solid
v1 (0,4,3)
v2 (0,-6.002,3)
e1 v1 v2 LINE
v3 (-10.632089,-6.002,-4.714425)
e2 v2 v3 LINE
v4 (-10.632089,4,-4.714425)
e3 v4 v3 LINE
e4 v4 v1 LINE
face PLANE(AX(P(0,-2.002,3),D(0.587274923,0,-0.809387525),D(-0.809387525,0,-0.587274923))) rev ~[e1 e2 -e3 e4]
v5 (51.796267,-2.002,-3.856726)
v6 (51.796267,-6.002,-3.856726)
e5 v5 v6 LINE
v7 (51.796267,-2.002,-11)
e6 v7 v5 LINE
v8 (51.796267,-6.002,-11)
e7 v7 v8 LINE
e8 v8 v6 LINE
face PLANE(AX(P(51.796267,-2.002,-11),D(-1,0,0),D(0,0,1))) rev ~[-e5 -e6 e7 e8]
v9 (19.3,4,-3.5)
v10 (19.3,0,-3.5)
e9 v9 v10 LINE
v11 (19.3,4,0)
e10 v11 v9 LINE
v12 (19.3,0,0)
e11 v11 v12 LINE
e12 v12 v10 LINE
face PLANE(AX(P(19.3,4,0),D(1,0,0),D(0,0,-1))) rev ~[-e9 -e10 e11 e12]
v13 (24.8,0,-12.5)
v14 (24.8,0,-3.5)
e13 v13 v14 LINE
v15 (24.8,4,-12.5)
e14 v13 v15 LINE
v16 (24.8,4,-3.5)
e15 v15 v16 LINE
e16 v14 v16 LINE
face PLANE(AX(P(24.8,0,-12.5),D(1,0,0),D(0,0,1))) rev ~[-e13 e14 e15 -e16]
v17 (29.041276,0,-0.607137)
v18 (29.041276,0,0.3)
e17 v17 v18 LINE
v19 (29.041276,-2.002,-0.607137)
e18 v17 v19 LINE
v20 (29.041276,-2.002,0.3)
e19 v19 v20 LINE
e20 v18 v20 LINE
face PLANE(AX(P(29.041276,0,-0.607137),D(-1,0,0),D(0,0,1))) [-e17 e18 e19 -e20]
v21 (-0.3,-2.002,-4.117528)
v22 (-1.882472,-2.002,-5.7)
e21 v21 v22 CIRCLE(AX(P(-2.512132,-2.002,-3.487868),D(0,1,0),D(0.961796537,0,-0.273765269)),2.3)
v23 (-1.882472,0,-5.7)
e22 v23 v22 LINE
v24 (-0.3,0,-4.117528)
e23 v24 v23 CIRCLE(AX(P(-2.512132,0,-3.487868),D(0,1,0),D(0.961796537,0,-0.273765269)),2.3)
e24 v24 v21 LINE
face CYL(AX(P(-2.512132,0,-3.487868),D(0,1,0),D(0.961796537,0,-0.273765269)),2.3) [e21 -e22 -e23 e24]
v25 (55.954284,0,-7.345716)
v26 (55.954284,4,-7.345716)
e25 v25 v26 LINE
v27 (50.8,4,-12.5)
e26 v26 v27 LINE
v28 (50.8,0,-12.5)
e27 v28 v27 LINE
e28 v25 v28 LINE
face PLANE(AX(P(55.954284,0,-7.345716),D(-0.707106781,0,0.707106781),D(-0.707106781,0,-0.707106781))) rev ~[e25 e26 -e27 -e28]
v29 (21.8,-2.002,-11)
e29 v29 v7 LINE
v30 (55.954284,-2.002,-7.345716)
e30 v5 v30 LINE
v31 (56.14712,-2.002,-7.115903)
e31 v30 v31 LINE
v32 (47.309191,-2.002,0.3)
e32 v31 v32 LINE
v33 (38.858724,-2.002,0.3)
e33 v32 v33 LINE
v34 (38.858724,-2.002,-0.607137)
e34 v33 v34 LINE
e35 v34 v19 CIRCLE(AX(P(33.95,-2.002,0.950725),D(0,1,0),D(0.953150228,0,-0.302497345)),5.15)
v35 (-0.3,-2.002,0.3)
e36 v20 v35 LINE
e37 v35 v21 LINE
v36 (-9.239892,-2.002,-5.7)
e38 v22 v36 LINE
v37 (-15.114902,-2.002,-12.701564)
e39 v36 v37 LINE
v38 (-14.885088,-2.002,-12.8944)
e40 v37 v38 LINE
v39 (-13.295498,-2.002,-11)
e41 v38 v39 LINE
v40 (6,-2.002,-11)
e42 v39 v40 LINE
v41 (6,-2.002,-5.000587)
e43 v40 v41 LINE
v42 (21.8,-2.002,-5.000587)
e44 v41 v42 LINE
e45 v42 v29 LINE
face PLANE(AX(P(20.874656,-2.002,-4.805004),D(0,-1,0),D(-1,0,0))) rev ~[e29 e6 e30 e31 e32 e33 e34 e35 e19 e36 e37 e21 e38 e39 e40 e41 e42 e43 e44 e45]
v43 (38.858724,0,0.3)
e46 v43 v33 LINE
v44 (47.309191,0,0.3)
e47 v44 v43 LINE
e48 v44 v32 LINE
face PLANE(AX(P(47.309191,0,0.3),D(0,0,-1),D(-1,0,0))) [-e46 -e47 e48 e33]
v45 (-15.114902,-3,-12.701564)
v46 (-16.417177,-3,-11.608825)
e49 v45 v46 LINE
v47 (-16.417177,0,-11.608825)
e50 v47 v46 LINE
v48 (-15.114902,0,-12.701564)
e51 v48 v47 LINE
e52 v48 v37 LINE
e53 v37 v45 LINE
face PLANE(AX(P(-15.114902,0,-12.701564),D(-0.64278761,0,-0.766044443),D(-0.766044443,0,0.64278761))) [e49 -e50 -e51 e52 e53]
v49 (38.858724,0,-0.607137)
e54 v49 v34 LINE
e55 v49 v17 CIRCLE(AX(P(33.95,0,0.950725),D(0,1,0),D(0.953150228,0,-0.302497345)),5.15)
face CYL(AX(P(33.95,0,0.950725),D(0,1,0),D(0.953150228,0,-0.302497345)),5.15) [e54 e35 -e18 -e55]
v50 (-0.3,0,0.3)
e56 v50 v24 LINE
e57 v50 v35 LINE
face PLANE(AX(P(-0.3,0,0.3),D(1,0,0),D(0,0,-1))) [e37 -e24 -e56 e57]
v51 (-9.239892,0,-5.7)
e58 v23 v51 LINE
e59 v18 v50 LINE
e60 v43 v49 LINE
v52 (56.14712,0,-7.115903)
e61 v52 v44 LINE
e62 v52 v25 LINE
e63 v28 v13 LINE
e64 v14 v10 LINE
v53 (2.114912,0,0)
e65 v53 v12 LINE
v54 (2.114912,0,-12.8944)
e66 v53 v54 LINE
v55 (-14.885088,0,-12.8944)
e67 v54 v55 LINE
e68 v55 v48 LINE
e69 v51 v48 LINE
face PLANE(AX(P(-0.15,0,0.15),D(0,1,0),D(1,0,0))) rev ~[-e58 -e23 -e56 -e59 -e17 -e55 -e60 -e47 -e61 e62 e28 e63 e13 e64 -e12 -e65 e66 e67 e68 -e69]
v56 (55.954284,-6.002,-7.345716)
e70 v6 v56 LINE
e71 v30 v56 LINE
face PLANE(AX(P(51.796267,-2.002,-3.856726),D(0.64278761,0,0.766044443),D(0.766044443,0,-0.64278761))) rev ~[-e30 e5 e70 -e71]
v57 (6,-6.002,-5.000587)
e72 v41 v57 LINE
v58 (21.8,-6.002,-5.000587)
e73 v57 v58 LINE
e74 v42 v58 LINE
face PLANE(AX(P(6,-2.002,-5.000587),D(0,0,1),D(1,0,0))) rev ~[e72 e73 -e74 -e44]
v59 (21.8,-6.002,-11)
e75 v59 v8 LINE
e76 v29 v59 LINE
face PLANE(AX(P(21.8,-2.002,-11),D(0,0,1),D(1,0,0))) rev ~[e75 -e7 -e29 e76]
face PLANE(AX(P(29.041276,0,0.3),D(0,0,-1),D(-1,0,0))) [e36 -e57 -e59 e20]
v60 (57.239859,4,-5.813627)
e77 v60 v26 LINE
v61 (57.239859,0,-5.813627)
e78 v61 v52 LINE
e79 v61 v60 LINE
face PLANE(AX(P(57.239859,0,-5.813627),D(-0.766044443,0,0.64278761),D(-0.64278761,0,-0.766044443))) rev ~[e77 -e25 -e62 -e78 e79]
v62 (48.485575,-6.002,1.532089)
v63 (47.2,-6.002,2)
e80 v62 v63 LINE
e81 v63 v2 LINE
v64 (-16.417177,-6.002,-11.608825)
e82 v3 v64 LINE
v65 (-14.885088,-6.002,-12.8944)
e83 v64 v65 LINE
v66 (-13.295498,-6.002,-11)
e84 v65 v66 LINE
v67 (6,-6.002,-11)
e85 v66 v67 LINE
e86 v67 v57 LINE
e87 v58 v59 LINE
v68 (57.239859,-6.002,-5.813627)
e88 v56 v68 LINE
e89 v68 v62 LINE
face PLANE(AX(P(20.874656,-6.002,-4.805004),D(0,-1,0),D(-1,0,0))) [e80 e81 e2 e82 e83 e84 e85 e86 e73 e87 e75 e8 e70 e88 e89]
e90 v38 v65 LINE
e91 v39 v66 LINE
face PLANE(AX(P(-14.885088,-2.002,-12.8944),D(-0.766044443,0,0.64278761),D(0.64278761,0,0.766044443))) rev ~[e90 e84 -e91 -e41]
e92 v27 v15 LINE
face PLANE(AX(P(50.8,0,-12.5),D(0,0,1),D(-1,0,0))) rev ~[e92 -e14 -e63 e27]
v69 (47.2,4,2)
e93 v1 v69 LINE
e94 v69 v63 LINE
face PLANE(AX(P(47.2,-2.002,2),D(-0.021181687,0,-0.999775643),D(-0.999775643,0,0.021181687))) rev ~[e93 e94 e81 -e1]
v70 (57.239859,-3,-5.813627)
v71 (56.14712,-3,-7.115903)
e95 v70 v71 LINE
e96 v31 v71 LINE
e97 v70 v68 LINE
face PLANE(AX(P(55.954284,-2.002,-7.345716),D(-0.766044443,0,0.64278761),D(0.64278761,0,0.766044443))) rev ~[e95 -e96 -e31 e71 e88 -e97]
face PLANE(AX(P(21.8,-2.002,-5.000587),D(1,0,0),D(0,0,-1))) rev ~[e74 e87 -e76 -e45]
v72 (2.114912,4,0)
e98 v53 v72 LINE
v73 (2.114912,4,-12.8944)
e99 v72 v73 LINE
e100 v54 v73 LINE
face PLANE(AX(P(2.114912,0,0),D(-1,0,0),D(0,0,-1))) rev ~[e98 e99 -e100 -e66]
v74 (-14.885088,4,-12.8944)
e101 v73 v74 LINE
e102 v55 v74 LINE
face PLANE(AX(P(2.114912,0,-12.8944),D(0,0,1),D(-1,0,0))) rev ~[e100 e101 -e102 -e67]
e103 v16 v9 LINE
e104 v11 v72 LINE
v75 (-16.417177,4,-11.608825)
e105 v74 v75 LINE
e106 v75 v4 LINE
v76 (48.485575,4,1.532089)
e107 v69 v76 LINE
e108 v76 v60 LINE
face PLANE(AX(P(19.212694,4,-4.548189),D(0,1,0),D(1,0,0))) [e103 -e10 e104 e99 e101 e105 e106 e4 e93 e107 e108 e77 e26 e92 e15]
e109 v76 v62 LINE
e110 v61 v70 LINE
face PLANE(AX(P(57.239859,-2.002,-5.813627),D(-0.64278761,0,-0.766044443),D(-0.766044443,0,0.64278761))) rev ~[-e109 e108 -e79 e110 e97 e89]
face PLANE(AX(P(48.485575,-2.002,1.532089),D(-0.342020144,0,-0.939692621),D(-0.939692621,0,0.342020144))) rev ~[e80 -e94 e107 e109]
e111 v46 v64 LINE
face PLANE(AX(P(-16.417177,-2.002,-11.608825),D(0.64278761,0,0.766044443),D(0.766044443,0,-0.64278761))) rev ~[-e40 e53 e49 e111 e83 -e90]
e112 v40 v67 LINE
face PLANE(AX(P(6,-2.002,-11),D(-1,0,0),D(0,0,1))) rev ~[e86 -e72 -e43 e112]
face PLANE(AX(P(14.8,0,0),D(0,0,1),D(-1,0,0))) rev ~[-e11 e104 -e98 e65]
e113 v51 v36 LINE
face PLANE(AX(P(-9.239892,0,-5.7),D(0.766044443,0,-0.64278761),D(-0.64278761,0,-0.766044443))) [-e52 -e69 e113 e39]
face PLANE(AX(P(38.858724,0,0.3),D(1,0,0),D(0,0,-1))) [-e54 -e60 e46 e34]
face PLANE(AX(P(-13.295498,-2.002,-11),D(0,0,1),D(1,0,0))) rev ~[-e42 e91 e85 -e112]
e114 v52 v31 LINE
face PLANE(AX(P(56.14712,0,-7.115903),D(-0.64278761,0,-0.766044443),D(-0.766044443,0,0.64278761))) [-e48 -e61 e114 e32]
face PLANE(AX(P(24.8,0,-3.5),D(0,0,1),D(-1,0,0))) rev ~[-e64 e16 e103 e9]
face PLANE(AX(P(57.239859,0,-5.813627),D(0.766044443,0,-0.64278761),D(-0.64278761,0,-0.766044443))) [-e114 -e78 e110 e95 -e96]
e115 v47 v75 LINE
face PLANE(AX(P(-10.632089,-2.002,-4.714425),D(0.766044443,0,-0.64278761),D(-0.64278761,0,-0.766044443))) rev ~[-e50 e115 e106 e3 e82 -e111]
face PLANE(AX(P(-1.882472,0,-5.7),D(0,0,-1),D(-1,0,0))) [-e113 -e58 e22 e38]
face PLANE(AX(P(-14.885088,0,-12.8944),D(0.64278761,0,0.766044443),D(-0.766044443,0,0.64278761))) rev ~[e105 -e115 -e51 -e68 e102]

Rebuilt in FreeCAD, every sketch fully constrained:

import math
import FreeCAD as App
import Part
import Sketcher
from FreeCAD import Vector
Q = App.Units.Quantity


def add_polygon(sketch, points):
    """Adds a closed chain of lines whose ends are joined by coincident constraints."""
    first, n = sketch.GeometryCount, len(points)
    for a, b in zip(points, points[1:] + points[:1]):
        sketch.addGeometry(Part.LineSegment(App.Vector(*a, 0), App.Vector(*b, 0)), False)
    for i in range(n):
        sketch.addConstraint(Sketcher.Constraint("Coincident", first + i, 2, first + (i + 1) % n, 1))

doc = App.newDocument("Part")
body = doc.addObject("PartDesign::Body", "Body")

# Sketch on XZ plane
sketch1 = body.newObject("Sketcher::SketchObject", "Sketch")
sketch1.AttachmentSupport = (doc.getObject("XZ_Plane"), [""])
sketch1.MapMode = "FlatFace"
add_polygon(sketch1, [(2.11, -12.89), (-14.89, -12.89), (-16.42, -11.61), (-10.63, -4.71), (0, 3), (47.2, 2), (48.49, 1.53), (57.24, -5.81), (55.95, -7.35), (50.8, -12.5), (24.8, -12.5), (24.8, -3.5), (14.8, -3.5), (14.8, 0), (2.11, 0)])  # lines 0-14
add_polygon(sketch1, [(0, 0.3), (-0.3, 0.3), (-0.3, 0), (0, 0)])  # lines 15-18
add_polygon(sketch1, [(47.2, 0), (47.39, 0.23), (47.31, 0.3), (47.2, 0.3)])  # lines 19-22
sketch1.addConstraint([
    Sketcher.Constraint("Horizontal", 0),
    Sketcher.Constraint("Horizontal", 9),
    Sketcher.Constraint("Vertical", 10),
    Sketcher.Constraint("Horizontal", 11),
    Sketcher.Constraint("Vertical", 12),
    Sketcher.Constraint("Horizontal", 13),
    Sketcher.Constraint("Vertical", 14),
    Sketcher.Constraint("Horizontal", 15),
    Sketcher.Constraint("Vertical", 16),
    Sketcher.Constraint("Horizontal", 17),
    Sketcher.Constraint("Vertical", 18),
    Sketcher.Constraint("Horizontal", 21),
    Sketcher.Constraint("Vertical", 22),
    Sketcher.Constraint("Coincident", 17, 2, -1, 1),
    Sketcher.Constraint("PointOnObject", 3, 2, -2),
    Sketcher.Constraint("PointOnObject", 12, 2, -1),
    Sketcher.Constraint("PointOnObject", 22, 2, -1),
    Sketcher.Constraint("Perpendicular", 1, 2),
    Sketcher.Constraint("Perpendicular", 2, 6),
    Sketcher.Constraint("Perpendicular", 6, 7),
    Sketcher.Constraint("Parallel", 7, 19),
    Sketcher.Constraint("Perpendicular", 19, 20),
    Sketcher.Constraint("Horizontal", 18, 2, 20, 2),
    Sketcher.Constraint("Vertical", 4, 2, 21, 2),
    Sketcher.Constraint("Equal", 17, 16),
    Sketcher.Constraint("Equal", 1, 7),
    Sketcher.Constraint("DistanceX", 0, 2, 0, 1, Q("17 mm")),
    Sketcher.Constraint("DistanceX", 9, 2, 9, 1, Q("26 mm")),
    Sketcher.Constraint("DistanceX", 11, 2, 11, 1, Q("10 mm")),
    Sketcher.Constraint("DistanceY", 10, 1, 10, 2, Q("9 mm")),
    Sketcher.Constraint("Angle", 1, Q("140 deg")),
    Sketcher.Constraint("Angle", 5, Q("-20 deg")),
    Sketcher.Constraint("Angle", 8, Q("-135 deg")),
    Sketcher.Constraint("Distance", 1, Q("2 mm")),
    Sketcher.Constraint("Distance", 2, Q("9 mm")),
    Sketcher.Constraint("DistanceX", 15, 2, 15, 1, Q("0.3 mm")),
    Sketcher.Constraint("DistanceY", 12, 1, 12, 2, Q("3.5 mm")),
    Sketcher.Constraint("DistanceY", -1, 1, 3, 2, Q("3 mm")),
    Sketcher.Constraint("DistanceY", -1, 1, 4, 2, Q("2 mm")),
    Sketcher.Constraint("Distance", 19, Q("0.3 mm")),
    Sketcher.Constraint("DistanceX", -1, 1, 4, 2, Q("47.2 mm")),
    Sketcher.Constraint("DistanceX", -1, 1, 8, 2, Q("50.8 mm")),
    Sketcher.Constraint("DistanceY", 14, 2, 14, 1, Q("12.8944 mm")),
    Sketcher.Constraint("DistanceX", 13, 2, 13, 1, Q("12.685088 mm")),
    Sketcher.Constraint("Distance", 5, Q("1.368081 mm")),
])
pad1 = body.newObject("PartDesign::Pad", "Pad")
pad1.Profile = sketch1
pad1.Length = 4
pad1.Reversed = True

# Sketch on XZ plane
sketch2 = body.newObject("Sketcher::SketchObject", "Sketch001")
sketch2.AttachmentSupport = (doc.getObject("XZ_Plane"), [""])
sketch2.MapMode = "FlatFace"
add_polygon(sketch2, [(-0.3, 0), (-0.3, 0.3), (0, 0.3), (0, 0)])  # lines 0-3
add_polygon(sketch2, [(47.2, 0), (47.2, 0.3), (47.31, 0.3), (47.39, 0.23)])  # lines 4-7
sketch2.addConstraint([
    Sketcher.Constraint("Vertical", 0),
    Sketcher.Constraint("Horizontal", 1),
    Sketcher.Constraint("Vertical", 2),
    Sketcher.Constraint("Horizontal", 3),
    Sketcher.Constraint("Vertical", 4),
    Sketcher.Constraint("Horizontal", 5),
    Sketcher.Constraint("Coincident", 2, 2, -1, 1),
    Sketcher.Constraint("PointOnObject", 7, 2, -1),
    Sketcher.Constraint("Perpendicular", 6, 7),
    Sketcher.Constraint("Horizontal", 1, 2, 4, 2),
    Sketcher.Constraint("Equal", 3, 0),
    Sketcher.Constraint("Angle", 6, Q("-40 deg")),
    Sketcher.Constraint("DistanceX", 1, 1, 1, 2, Q("0.3 mm")),
    Sketcher.Constraint("Distance", 7, Q("0.3 mm")),
    Sketcher.Constraint("DistanceX", -1, 1, 4, 2, Q("47.2 mm")),
])
pad2 = body.newObject("PartDesign::Pad", "Pad001")
pad2.Profile = sketch2
pad2.Length = 4
pad2.Reversed = True

# Sketch on XZ plane
sketch3 = body.newObject("Sketcher::SketchObject", "Sketch002")
sketch3.AttachmentSupport = (doc.getObject("XZ_Plane"), [""])
sketch3.MapMode = "FlatFace"
sketch3.addGeometry([
    Part.LineSegment(Vector(-0.3, 0.3, 0), Vector(-0.3, -4.1, 0)),  # 0
    Part.ArcOfCircle(Part.Circle(Vector(-2.5, -3.5, 0), Vector(0, 0, 1), 2.3), math.radians(-74), math.radians(-16)),  # 1
    Part.LineSegment(Vector(-1.9, -5.7, 0), Vector(-9.2, -5.7, 0)),  # 2
    Part.LineSegment(Vector(-9.2, -5.7, 0), Vector(-15.1, -12.7, 0)),  # 3
    Part.LineSegment(Vector(-15.1, -12.7, 0), Vector(-16.4, -11.6, 0)),  # 4
    Part.LineSegment(Vector(-16.4, -11.6, 0), Vector(-10.6, -4.7, 0)),  # 5
    Part.LineSegment(Vector(-10.6, -4.7, 0), Vector(0, 3, 0)),  # 6
    Part.LineSegment(Vector(0, 3, 0), Vector(47.2, 2, 0)),  # 7
    Part.LineSegment(Vector(47.2, 2, 0), Vector(48.5, 1.5, 0)),  # 8
    Part.LineSegment(Vector(48.5, 1.5, 0), Vector(57.2, -5.8, 0)),  # 9
    Part.LineSegment(Vector(57.2, -5.8, 0), Vector(56.1, -7.1, 0)),  # 10
    Part.LineSegment(Vector(56.1, -7.1, 0), Vector(47.3, 0.3, 0)),  # 11
    Part.LineSegment(Vector(47.3, 0.3, 0), Vector(38.9, 0.3, 0)),  # 12
    Part.LineSegment(Vector(38.9, 0.3, 0), Vector(38.9, -0.6, 0)),  # 13
    Part.ArcOfCircle(Part.Circle(Vector(34, 1, 0), Vector(0, 0, 1), 5.2), math.radians(-162), math.radians(-18)),  # 14
    Part.LineSegment(Vector(29, -0.6, 0), Vector(29, 0.3, 0)),  # 15
    Part.LineSegment(Vector(29, 0.3, 0), Vector(-0.3, 0.3, 0)),  # 16
], False)
sketch3.addConstraint([
    Sketcher.Constraint("Coincident", 0, 2, 1, 2),
    Sketcher.Constraint("Coincident", 1, 1, 2, 1),
    Sketcher.Constraint("Coincident", 2, 2, 3, 1),
    Sketcher.Constraint("Coincident", 3, 2, 4, 1),
    Sketcher.Constraint("Coincident", 4, 2, 5, 1),
    Sketcher.Constraint("Coincident", 5, 2, 6, 1),
    Sketcher.Constraint("Coincident", 6, 2, 7, 1),
    Sketcher.Constraint("Coincident", 7, 2, 8, 1),
    Sketcher.Constraint("Coincident", 8, 2, 9, 1),
    Sketcher.Constraint("Coincident", 9, 2, 10, 1),
    Sketcher.Constraint("Coincident", 10, 2, 11, 1),
    Sketcher.Constraint("Coincident", 11, 2, 12, 1),
    Sketcher.Constraint("Coincident", 12, 2, 13, 1),
    Sketcher.Constraint("Coincident", 13, 2, 14, 2),
    Sketcher.Constraint("Coincident", 14, 1, 15, 1),
    Sketcher.Constraint("Coincident", 15, 2, 16, 1),
    Sketcher.Constraint("Coincident", 16, 2, 0, 1),
    Sketcher.Constraint("Vertical", 0),
    Sketcher.Constraint("Horizontal", 2),
    Sketcher.Constraint("Horizontal", 12),
    Sketcher.Constraint("Vertical", 13),
    Sketcher.Constraint("Vertical", 15),
    Sketcher.Constraint("Horizontal", 16),
    Sketcher.Constraint("PointOnObject", 6, 2, -2),
    Sketcher.Constraint("Perpendicular", 3, 4),
    Sketcher.Constraint("Perpendicular", 4, 5),
    Sketcher.Constraint("Perpendicular", 5, 9),
    Sketcher.Constraint("Perpendicular", 9, 10),
    Sketcher.Constraint("Perpendicular", 10, 11),
    Sketcher.Constraint("Horizontal", 13, 2, 14, 1),
    Sketcher.Constraint("Horizontal", 12, 2, 15, 2),
    Sketcher.Constraint("Equal", 4, 10),
    Sketcher.Constraint("Radius", 1, Q("2.3 mm")),
    Sketcher.Constraint("Angle", 3, Q("-130 deg")),
    Sketcher.Constraint("Angle", 8, Q("-20 deg")),
    Sketcher.Constraint("Radius", 14, Q("5.15 mm")),
    Sketcher.Constraint("Distance", 5, Q("9 mm")),
    Sketcher.Constraint("DistanceY", -1, 1, 6, 2, Q("3 mm")),
    Sketcher.Constraint("DistanceY", -1, 1, 7, 2, Q("2 mm")),
    Sketcher.Constraint("DistanceY", 1, 1, 16, 2, Q("6 mm")),
    Sketcher.Constraint("Distance", 4, Q("1.7 mm")),
    Sketcher.Constraint("DistanceX", 0, 2, -1, 1, Q("0.3 mm")),
    Sketcher.Constraint("DistanceY", 1, 1, -1, 1, Q("5.7 mm")),
    Sketcher.Constraint("DistanceX", -1, 1, 7, 2, Q("47.2 mm")),
    Sketcher.Constraint("DistanceX", -1, 1, 14, 3, Q("33.95 mm")),
    Sketcher.Constraint("DistanceX", 2, 2, 2, 1, Q("7.35742 mm")),
    Sketcher.Constraint("DistanceY", 0, 2, 0, 1, Q("4.417528 mm")),
    Sketcher.Constraint("DistanceX", 3, 2, -1, 1, Q("15.114902 mm")),
    Sketcher.Constraint("DistanceY", 9, 2, 0, 2, Q("1.696099 mm")),
    Sketcher.Constraint("Distance", 6, Q("13.135968 mm")),
    Sketcher.Constraint("Distance", 8, Q("1.368081 mm")),
    Sketcher.Constraint("DistanceX", 12, 2, 12, 1, Q("8.450467 mm")),
    Sketcher.Constraint("DistanceY", 13, 2, 13, 1, Q("0.907137 mm")),
])
pad3 = body.newObject("PartDesign::Pad", "Pad002")
pad3.Profile = sketch3
pad3.Length = 3

# Sketch on XZ plane
sketch4 = body.newObject("Sketcher::SketchObject", "Sketch003")
sketch4.AttachmentSupport = (doc.getObject("XZ_Plane"), [""])
sketch4.MapMode = "FlatFace"
sketch4.AttachmentOffset = App.Placement(Vector(0, 0, 3), App.Rotation())
add_polygon(sketch4, [(56, -7.3), (57.2, -5.8), (48.5, 1.5), (47.2, 2), (0, 3), (-10.6, -4.7), (-16.4, -11.6), (-14.9, -12.9), (-13.3, -11), (6, -11), (6, -5), (21.8, -5), (21.8, -11), (51.8, -11), (51.8, -3.9)])  # lines 0-14
sketch4.addConstraint([
    Sketcher.Constraint("Horizontal", 8),
    Sketcher.Constraint("Vertical", 9),
    Sketcher.Constraint("Horizontal", 10),
    Sketcher.Constraint("Vertical", 11),
    Sketcher.Constraint("Horizontal", 12),
    Sketcher.Constraint("Vertical", 13),
    Sketcher.Constraint("PointOnObject", 3, 2, -2),
    Sketcher.Constraint("Perpendicular", 0, 1),
    Sketcher.Constraint("Perpendicular", 1, 5),
    Sketcher.Constraint("Perpendicular", 5, 6),
    Sketcher.Constraint("Perpendicular", 6, 7),
    Sketcher.Constraint("Perpendicular", 7, 14),
    Sketcher.Constraint("Horizontal", 8, 2, 11, 2),
    Sketcher.Constraint("Equal", 0, 6),
    Sketcher.Constraint("Angle", 0, Q("50 deg")),
    Sketcher.Constraint("Angle", 2, Q("160 deg")),
    Sketcher.Constraint("Distance", 0, Q("2 mm")),
    Sketcher.Constraint("Distance", 5, Q("9 mm")),
    Sketcher.Constraint("DistanceX", 10, 1, 10, 2, Q("15.8 mm")),
    Sketcher.Constraint("DistanceY", -1, 1, 2, 2, Q("2 mm")),
    Sketcher.Constraint("DistanceY", -1, 1, 3, 2, Q("3 mm")),
    Sketcher.Constraint("DistanceY", 7, 2, -1, 1, Q("11 mm")),
    Sketcher.Constraint("DistanceX", -1, 1, 8, 2, Q("6 mm")),
    Sketcher.Constraint("DistanceX", -1, 1, 2, 2, Q("47.2 mm")),
    Sketcher.Constraint("DistanceX", 8, 1, 8, 2, Q("19.295498 mm")),
    Sketcher.Constraint("DistanceY", 6, 2, -1, 1, Q("12.8944 mm")),
    Sketcher.Constraint("DistanceY", 0, 2, 13, 2, Q("1.956902 mm")),
    Sketcher.Constraint("Distance", 2, Q("1.368081 mm")),
    Sketcher.Constraint("DistanceX", 12, 1, 12, 2, Q("29.996267 mm")),
    Sketcher.Constraint("DistanceY", 9, 1, 9, 2, Q("5.999413 mm")),
])
pad4 = body.newObject("PartDesign::Pad", "Pad003")
pad4.Profile = sketch4
pad4.Type = "TwoLengths"
pad4.Length = 3.002
pad4.Length2 = 0.998

# Sketch on XZ plane
sketch5 = body.newObject("Sketcher::SketchObject", "Sketch004")
sketch5.AttachmentSupport = (doc.getObject("XZ_Plane"), [""])
sketch5.MapMode = "FlatFace"
sketch5.AttachmentOffset = App.Placement(Vector(0, 0, -4), App.Rotation())
add_polygon(sketch5, [(14.8, -3.5), (14.8, 0), (19.3, 0), (19.3, -3.5)])  # lines 0-3
sketch5.addConstraint([
    Sketcher.Constraint("Vertical", 0),
    Sketcher.Constraint("Horizontal", 1),
    Sketcher.Constraint("Vertical", 2),
    Sketcher.Constraint("Horizontal", 3),
    Sketcher.Constraint("PointOnObject", 0, 2, -1),
    Sketcher.Constraint("DistanceX", 1, 1, 1, 2, Q("4.5 mm")),
    Sketcher.Constraint("DistanceY", 0, 1, 0, 2, Q("3.5 mm")),
    Sketcher.Constraint("DistanceX", -1, 1, 0, 2, Q("14.8 mm")),
])
pocket1 = body.newObject("PartDesign::Pocket", "Pocket")
pocket1.Profile = sketch5
pocket1.Length = 4
pocket1.Reversed = True

doc.recompute()
